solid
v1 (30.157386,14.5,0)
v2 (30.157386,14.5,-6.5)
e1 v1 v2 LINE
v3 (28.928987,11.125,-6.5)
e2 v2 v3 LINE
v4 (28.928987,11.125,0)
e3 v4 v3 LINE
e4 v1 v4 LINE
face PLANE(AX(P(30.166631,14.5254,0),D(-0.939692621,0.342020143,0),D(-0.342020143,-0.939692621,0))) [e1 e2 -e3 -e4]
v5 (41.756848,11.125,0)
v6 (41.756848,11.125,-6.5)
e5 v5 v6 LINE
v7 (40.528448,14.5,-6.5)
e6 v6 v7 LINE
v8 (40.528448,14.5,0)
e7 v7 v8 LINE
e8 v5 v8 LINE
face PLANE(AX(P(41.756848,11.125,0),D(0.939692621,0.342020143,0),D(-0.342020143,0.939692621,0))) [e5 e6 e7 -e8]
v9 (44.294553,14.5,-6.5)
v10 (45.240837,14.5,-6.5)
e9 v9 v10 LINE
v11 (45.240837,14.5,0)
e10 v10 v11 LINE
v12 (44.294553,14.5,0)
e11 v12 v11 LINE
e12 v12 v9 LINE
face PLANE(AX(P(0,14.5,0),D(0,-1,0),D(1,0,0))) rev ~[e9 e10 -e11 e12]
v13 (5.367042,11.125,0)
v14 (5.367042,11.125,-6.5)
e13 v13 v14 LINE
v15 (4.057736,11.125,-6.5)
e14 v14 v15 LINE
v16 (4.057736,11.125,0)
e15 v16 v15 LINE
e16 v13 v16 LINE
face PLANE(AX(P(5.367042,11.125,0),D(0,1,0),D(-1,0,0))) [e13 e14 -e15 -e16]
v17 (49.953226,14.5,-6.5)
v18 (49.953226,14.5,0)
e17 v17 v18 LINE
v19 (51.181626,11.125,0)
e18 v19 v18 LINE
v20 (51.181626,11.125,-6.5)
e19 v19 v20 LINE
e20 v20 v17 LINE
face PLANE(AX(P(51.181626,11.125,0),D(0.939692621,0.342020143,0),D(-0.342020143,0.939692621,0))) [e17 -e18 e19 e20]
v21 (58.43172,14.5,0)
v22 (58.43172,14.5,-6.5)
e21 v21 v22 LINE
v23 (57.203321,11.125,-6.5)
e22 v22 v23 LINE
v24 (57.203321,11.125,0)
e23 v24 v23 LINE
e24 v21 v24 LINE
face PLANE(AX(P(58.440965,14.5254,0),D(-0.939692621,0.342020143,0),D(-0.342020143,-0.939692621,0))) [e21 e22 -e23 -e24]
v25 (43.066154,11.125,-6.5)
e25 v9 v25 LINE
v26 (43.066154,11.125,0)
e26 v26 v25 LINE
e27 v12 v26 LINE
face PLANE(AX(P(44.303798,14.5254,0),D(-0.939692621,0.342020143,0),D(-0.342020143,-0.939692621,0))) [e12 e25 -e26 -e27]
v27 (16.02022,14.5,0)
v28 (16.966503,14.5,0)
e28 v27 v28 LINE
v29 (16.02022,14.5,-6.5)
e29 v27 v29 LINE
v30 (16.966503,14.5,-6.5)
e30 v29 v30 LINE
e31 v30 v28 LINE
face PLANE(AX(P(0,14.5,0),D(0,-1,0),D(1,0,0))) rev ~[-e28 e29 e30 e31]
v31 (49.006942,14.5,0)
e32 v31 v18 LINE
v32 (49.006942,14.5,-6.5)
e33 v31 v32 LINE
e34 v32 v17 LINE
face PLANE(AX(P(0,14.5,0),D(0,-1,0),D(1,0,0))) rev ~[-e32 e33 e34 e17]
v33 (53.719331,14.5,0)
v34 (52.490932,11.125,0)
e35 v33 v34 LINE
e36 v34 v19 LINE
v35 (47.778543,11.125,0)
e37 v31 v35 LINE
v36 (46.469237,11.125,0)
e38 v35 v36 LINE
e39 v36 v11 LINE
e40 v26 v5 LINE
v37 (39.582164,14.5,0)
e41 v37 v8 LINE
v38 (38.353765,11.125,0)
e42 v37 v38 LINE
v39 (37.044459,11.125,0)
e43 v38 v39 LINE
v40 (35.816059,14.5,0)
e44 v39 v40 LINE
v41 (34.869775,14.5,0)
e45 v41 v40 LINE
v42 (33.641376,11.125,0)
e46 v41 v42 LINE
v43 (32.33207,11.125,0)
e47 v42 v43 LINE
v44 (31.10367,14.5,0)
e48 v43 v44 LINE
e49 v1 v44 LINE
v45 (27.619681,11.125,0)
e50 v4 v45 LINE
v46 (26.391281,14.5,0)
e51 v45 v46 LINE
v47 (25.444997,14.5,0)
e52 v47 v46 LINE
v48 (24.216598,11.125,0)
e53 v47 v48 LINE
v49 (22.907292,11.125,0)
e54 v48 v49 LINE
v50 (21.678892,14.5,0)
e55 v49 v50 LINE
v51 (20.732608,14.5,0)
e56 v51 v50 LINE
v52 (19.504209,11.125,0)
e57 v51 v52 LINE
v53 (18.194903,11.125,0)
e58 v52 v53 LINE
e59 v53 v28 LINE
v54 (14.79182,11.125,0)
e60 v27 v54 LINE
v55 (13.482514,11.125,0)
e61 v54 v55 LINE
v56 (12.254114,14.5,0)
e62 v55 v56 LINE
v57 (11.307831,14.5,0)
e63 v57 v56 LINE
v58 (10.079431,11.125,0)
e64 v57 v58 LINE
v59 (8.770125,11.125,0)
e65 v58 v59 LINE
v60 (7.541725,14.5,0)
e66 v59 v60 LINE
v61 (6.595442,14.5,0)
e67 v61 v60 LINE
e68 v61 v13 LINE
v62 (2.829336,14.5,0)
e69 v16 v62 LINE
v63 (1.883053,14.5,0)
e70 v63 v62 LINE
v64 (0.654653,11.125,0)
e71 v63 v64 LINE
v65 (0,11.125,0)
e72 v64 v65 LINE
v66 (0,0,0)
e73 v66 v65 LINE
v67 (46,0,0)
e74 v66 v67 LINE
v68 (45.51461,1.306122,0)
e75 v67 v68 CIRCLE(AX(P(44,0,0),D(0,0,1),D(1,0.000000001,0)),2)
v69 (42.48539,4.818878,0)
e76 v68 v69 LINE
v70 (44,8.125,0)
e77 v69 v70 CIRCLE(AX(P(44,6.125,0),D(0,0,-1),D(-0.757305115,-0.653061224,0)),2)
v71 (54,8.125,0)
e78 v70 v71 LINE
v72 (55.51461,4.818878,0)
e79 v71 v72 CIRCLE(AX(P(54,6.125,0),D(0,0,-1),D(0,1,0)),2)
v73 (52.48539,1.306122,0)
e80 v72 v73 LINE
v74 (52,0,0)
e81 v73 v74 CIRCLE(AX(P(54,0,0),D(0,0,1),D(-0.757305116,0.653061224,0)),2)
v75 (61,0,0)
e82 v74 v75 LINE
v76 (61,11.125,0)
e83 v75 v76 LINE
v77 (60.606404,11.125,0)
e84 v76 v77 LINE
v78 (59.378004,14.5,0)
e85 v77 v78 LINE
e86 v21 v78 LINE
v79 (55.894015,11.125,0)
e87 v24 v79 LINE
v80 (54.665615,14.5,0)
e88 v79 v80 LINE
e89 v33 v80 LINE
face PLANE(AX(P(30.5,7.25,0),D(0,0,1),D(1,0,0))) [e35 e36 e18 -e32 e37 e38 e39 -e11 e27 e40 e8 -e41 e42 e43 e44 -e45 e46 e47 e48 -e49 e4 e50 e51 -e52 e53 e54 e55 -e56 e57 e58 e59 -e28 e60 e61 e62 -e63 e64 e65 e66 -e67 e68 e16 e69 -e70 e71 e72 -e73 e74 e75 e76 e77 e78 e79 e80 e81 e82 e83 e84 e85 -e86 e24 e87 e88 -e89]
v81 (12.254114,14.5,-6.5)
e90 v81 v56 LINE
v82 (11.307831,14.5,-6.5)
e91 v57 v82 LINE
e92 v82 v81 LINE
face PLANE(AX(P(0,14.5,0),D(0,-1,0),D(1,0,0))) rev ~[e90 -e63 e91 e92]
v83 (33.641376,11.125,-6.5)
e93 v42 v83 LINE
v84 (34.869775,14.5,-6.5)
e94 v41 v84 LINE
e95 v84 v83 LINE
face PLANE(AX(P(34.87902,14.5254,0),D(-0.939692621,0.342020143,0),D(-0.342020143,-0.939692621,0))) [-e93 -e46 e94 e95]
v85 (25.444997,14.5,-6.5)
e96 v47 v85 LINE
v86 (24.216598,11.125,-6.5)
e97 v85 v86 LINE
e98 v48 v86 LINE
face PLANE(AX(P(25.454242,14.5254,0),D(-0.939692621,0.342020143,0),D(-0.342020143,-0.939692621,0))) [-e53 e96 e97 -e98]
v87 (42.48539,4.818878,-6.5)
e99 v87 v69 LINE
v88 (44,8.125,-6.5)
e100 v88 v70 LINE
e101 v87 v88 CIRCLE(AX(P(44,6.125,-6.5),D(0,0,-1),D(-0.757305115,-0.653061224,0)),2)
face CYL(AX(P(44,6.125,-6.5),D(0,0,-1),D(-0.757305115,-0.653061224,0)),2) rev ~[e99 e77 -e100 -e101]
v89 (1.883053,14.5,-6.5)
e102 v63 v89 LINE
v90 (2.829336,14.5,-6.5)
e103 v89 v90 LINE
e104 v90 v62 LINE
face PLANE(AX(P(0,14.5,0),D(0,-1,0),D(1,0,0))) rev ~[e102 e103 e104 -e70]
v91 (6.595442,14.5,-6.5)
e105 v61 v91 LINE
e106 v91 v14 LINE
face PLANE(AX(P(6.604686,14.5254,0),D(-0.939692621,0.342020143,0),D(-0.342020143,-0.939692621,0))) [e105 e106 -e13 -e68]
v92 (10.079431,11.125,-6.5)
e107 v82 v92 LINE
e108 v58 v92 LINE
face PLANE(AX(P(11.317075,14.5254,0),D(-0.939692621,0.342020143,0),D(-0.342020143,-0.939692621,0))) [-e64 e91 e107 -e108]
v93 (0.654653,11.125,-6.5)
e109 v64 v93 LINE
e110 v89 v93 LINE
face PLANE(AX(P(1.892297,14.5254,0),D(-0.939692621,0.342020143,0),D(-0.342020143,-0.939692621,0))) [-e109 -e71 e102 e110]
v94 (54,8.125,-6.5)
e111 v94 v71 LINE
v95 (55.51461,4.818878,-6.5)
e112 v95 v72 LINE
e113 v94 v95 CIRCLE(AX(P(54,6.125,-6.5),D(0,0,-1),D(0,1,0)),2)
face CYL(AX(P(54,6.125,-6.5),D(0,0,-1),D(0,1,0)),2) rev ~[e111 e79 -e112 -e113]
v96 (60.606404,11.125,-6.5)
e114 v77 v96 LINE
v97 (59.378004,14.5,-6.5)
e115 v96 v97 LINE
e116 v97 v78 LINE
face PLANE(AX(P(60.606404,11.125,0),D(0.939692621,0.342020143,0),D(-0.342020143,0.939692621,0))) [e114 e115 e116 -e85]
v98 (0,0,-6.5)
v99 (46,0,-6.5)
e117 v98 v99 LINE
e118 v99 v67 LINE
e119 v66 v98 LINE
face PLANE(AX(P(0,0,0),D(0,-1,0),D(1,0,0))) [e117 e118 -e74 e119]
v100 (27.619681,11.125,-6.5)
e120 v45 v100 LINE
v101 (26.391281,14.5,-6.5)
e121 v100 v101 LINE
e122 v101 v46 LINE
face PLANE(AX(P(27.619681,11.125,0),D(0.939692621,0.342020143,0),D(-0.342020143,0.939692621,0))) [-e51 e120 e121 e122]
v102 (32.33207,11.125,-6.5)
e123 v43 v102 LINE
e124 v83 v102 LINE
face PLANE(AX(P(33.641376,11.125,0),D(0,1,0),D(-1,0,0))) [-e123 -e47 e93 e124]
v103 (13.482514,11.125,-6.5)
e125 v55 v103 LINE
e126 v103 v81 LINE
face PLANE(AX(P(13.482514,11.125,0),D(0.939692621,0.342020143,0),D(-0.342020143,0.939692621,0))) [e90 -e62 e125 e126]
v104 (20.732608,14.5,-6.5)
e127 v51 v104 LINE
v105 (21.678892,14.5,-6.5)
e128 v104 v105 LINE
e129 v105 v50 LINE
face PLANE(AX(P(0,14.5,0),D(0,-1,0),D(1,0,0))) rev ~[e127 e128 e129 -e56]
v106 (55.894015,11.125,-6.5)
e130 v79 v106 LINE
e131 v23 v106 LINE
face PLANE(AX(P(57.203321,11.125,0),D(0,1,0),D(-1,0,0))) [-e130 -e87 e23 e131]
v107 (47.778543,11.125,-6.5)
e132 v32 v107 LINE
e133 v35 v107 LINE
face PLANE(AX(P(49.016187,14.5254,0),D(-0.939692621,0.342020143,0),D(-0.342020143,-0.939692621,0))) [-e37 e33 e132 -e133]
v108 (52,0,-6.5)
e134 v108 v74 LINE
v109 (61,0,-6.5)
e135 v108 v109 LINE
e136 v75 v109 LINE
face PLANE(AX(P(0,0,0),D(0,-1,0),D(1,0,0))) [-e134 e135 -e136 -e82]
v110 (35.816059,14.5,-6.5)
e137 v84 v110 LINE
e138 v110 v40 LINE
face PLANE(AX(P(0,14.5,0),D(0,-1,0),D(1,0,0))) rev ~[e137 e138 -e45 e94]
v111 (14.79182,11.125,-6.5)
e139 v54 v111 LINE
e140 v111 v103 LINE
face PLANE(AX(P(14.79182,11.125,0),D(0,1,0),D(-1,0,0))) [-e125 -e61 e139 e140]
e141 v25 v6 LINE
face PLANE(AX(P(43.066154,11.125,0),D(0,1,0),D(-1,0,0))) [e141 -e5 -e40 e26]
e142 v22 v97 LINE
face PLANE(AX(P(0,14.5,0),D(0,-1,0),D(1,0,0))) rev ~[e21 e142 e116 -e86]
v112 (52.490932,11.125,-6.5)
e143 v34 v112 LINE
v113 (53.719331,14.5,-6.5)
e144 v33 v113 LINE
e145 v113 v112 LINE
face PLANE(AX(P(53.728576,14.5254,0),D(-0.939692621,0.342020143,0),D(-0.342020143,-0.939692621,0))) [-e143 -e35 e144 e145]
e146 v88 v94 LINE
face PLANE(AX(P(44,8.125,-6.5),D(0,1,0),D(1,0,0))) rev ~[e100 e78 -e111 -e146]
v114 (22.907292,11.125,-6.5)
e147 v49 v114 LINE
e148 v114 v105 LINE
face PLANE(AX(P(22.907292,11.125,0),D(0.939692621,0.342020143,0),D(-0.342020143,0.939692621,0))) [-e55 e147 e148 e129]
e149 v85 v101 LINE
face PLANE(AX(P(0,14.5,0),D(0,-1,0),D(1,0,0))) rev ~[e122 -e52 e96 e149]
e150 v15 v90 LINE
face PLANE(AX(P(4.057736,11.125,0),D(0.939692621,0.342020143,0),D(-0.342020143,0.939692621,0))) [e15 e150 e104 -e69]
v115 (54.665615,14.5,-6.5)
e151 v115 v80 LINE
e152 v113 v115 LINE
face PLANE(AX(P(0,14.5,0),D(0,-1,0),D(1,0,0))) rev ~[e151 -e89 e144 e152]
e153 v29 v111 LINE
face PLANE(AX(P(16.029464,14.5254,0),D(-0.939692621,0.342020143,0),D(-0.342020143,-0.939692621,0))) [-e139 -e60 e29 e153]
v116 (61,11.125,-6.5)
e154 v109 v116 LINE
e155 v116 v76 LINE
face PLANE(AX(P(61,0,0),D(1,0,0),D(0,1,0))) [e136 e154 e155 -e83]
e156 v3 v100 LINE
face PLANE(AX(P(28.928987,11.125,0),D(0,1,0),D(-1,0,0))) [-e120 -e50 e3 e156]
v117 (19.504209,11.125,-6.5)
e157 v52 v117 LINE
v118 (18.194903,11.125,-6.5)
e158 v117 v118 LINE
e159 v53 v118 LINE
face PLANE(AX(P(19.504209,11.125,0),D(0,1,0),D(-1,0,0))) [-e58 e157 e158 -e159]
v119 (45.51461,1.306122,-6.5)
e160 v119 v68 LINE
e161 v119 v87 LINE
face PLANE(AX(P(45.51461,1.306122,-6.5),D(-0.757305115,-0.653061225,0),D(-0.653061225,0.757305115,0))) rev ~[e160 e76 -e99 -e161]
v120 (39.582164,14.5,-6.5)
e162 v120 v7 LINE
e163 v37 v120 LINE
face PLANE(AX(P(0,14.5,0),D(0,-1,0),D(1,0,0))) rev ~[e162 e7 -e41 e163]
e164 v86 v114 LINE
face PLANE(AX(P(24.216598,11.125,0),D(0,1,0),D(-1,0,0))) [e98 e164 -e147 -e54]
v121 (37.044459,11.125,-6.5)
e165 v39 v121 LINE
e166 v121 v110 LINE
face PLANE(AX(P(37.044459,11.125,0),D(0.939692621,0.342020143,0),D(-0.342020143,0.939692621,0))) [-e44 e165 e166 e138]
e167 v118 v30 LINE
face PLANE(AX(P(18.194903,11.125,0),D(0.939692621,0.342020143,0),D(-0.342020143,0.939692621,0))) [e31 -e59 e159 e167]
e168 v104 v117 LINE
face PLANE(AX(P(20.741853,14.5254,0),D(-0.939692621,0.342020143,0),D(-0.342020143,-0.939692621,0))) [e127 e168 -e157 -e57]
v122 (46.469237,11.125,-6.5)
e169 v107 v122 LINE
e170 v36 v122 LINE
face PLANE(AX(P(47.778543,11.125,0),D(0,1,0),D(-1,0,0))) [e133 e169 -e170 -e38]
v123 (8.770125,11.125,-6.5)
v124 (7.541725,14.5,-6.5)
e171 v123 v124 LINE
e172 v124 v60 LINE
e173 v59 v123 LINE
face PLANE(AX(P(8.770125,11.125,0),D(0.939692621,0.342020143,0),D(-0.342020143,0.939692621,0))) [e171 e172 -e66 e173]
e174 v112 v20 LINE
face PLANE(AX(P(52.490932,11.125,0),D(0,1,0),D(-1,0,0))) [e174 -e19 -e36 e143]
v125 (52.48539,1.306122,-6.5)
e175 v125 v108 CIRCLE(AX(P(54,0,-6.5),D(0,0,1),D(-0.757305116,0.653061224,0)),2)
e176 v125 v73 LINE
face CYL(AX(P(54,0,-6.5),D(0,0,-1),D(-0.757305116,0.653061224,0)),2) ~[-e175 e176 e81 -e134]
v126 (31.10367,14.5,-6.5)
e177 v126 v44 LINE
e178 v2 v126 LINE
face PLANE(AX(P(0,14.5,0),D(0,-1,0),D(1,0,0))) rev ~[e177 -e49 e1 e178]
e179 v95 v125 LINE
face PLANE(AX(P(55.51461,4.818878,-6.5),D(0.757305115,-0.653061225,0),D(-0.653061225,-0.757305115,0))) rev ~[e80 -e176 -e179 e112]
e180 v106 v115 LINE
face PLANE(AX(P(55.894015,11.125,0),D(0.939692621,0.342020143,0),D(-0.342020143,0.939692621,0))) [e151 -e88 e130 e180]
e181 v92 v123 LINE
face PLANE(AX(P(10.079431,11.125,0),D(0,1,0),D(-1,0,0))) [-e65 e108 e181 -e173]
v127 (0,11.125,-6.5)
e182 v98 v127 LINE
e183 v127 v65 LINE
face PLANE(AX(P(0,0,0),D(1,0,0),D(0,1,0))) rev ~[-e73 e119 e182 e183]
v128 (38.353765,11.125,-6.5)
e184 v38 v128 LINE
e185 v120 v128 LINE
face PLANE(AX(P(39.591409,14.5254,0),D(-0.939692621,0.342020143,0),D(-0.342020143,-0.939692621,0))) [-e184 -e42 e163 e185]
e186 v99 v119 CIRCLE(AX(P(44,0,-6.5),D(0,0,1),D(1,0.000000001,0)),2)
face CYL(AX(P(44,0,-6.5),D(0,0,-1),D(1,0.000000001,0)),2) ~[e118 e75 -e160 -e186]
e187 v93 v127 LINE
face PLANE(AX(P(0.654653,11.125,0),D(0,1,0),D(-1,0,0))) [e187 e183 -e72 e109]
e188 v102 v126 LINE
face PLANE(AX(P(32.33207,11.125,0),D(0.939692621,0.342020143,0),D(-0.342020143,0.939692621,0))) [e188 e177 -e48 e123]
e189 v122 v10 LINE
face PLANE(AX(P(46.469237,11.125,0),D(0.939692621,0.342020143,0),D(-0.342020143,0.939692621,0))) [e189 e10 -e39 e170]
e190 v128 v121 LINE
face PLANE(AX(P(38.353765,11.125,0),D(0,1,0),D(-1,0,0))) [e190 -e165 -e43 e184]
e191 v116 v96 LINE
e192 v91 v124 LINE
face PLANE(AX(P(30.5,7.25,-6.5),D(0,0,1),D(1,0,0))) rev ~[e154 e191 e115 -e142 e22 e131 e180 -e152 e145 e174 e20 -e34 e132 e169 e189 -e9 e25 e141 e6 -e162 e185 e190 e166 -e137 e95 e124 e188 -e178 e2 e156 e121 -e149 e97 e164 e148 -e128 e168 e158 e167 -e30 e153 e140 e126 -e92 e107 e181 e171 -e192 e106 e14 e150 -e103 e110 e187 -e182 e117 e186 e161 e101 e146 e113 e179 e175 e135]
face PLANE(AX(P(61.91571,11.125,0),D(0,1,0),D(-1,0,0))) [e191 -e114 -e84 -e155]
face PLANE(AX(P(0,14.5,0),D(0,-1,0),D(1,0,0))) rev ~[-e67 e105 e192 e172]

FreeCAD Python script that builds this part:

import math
import FreeCAD as App
import Part
import Sketcher

V = App.Vector
Q = App.Units.Quantity

doc = App.newDocument("Part")
body = doc.addObject("PartDesign::Body", "Body")

# Sketch on XY plane
sketch1 = doc.addObject("Sketcher::SketchObject", "Sketch")
body.addObject(sketch1)
sketch1.AttachmentSupport = (doc.XY_Plane, [""])
sketch1.MapMode = "FlatFace"
sketch1.addGeometry([
    Part.LineSegment(V(0, 14.5, 0), V(0, 0, 0)),
    Part.LineSegment(V(0, 0, 0), V(61, 0, 0)),
    Part.LineSegment(V(61, 0, 0), V(61, 14.5, 0)),
    Part.LineSegment(V(61, 14.5, 0), V(0, 14.5, 0)),
], False)
sketch1.addConstraint([
    Sketcher.Constraint("Coincident", 0, 2, 1, 1),
    Sketcher.Constraint("Coincident", 1, 2, 2, 1),
    Sketcher.Constraint("Coincident", 2, 2, 3, 1),
    Sketcher.Constraint("Coincident", 3, 2, 0, 1),
    Sketcher.Constraint("Vertical", 0),
    Sketcher.Constraint("Horizontal", 1),
    Sketcher.Constraint("Vertical", 2),
    Sketcher.Constraint("Horizontal", 3),
    Sketcher.Constraint("Coincident", 0, 2, -1, 1),
    Sketcher.Constraint("DistanceX", 1, 1, 1, 2, Q("61 mm")),
    Sketcher.Constraint("DistanceY", 0, 2, 0, 1, Q("14.5 mm")),
])
pad1 = doc.addObject("PartDesign::Pad", "Pad")
body.addObject(pad1)
pad1.Profile = sketch1
pad1.Length = 6.5
pad1.Reversed = True

# Sketch on XY plane
sketch2 = doc.addObject("Sketcher::SketchObject", "Sketch001")
body.addObject(sketch2)
sketch2.AttachmentSupport = (doc.XY_Plane, [""])
sketch2.MapMode = "FlatFace"
sketch2.addGeometry([
    Part.LineSegment(V(-0.654653, 11.125, 0), V(0.654653, 11.125, 0)),
    Part.LineSegment(V(0.654653, 11.125, 0), V(1.892297, 14.5254, 0)),
    Part.LineSegment(V(1.892297, 14.5254, 0), V(-1.892297, 14.5254, 0)),
    Part.LineSegment(V(-1.892297, 14.5254, 0), V(-0.654653, 11.125, 0)),
], False)
sketch2.addConstraint([
    Sketcher.Constraint("Coincident", 0, 2, 1, 1),
    Sketcher.Constraint("Coincident", 1, 2, 2, 1),
    Sketcher.Constraint("Coincident", 2, 2, 3, 1),
    Sketcher.Constraint("Coincident", 3, 2, 0, 1),
    Sketcher.Constraint("Horizontal", 0),
    Sketcher.Constraint("Horizontal", 2),
    Sketcher.Constraint("Equal", 1, 3),
    Sketcher.Constraint("Angle", 1, Q("70 deg")),
    Sketcher.Constraint("DistanceY", -1, 1, 0, 2, Q("11.125 mm")),
    Sketcher.Constraint("DistanceY", -1, 1, 1, 2, Q("14.5254 mm")),
    Sketcher.Constraint("DistanceX", 0, 1, 0, 2, Q("1.309306 mm")),
    Sketcher.Constraint("DistanceX", -1, 1, 0, 2, Q("0.654653 mm")),
])
pocket1 = doc.addObject("PartDesign::Pocket", "Pocket")
body.addObject(pocket1)
pocket1.Profile = sketch2
pocket1.Type = "ThroughAll"
doc.recompute()

linearpattern = doc.addObject("PartDesign::LinearPattern", "LinearPattern")
body.addObject(linearpattern)
linearpattern.Originals = [pocket1]
linearpattern.Direction = (doc.X_Axis, [""])
linearpattern.Mode = "offset"
linearpattern.Offset = 4.712389
linearpattern.Occurrences = 14
body.Tip = linearpattern

# Sketch on XY plane
sketch3 = doc.addObject("Sketcher::SketchObject", "Sketch002")
body.addObject(sketch3)
sketch3.AttachmentSupport = (doc.XY_Plane, [""])
sketch3.MapMode = "FlatFace"
sketch3.AttachmentOffset = App.Placement(V(0, 0, -6.5), App.Rotation())
sketch3.addGeometry([
    Part.LineSegment(V(44, 8.125, 0), V(54, 8.125, 0)),  # 0
    Part.ArcOfCircle(Part.Circle(V(54, 6.125, 0), V(0, 0, 1), 2), math.radians(-40.772805), math.radians(90)),  # 1
    Part.LineSegment(V(55.51461, 4.818878, 0), V(52.48539, 1.306122, 0)),  # 2
    Part.ArcOfCircle(Part.Circle(V(54, 0, 0), V(0, 0, 1), 2), math.radians(139.227195), math.radians(180)),  # 3
    Part.LineSegment(V(52, 0, 0), V(46, 0, 0)),  # 4
    Part.ArcOfCircle(Part.Circle(V(44, 0, 0), V(0, 0, 1), 2), math.radians(0), math.radians(40.772805)),  # 5
    Part.LineSegment(V(45.51461, 1.306122, 0), V(42.48539, 4.818878, 0)),  # 6
    Part.ArcOfCircle(Part.Circle(V(44, 6.125, 0), V(0, 0, 1), 2), math.radians(90), math.radians(220.772805)),  # 7
], False)
sketch3.addConstraint([
    Sketcher.Constraint("Tangent", 0, 2, 1, 2),
    Sketcher.Constraint("Tangent", 1, 1, 2, 1),
    Sketcher.Constraint("Tangent", 2, 2, 3, 1),
    Sketcher.Constraint("Coincident", 3, 2, 4, 1),
    Sketcher.Constraint("Coincident", 4, 2, 5, 1),
    Sketcher.Constraint("Tangent", 5, 2, 6, 1),
    Sketcher.Constraint("Tangent", 6, 2, 7, 2),
    Sketcher.Constraint("Tangent", 7, 1, 0, 1),
    Sketcher.Constraint("Horizontal", 0),
    Sketcher.Constraint("Horizontal", 4),
    Sketcher.Constraint("Equal", 1, 3),
    Sketcher.Constraint("Equal", 3, 5),
    Sketcher.Constraint("Equal", 5, 7),
    Sketcher.Constraint("PointOnObject", 3, 3, -1),
    Sketcher.Constraint("PointOnObject", 5, 3, -1),
    Sketcher.Constraint("PointOnObject", 3, 2, -1),
    Sketcher.Constraint("Horizontal", 2, 2, 5, 2),
    Sketcher.Constraint("Vertical", 1, 3, 3, 3),
    Sketcher.Constraint("Radius", 1, Q("2 mm")),
    Sketcher.Constraint("DistanceX", 0, 1, 0, 2, Q("10 mm")),
    Sketcher.Constraint("DistanceX", -1, 1, 1, 3, Q("54 mm")),
    Sketcher.Constraint("DistanceY", -1, 1, 1, 3, Q("6.125 mm")),
])
pocket2 = doc.addObject("PartDesign::Pocket", "Pocket001")
body.addObject(pocket2)
pocket2.Profile = sketch3
pocket2.Length = 6.5
pocket2.Reversed = True

doc.recompute()
